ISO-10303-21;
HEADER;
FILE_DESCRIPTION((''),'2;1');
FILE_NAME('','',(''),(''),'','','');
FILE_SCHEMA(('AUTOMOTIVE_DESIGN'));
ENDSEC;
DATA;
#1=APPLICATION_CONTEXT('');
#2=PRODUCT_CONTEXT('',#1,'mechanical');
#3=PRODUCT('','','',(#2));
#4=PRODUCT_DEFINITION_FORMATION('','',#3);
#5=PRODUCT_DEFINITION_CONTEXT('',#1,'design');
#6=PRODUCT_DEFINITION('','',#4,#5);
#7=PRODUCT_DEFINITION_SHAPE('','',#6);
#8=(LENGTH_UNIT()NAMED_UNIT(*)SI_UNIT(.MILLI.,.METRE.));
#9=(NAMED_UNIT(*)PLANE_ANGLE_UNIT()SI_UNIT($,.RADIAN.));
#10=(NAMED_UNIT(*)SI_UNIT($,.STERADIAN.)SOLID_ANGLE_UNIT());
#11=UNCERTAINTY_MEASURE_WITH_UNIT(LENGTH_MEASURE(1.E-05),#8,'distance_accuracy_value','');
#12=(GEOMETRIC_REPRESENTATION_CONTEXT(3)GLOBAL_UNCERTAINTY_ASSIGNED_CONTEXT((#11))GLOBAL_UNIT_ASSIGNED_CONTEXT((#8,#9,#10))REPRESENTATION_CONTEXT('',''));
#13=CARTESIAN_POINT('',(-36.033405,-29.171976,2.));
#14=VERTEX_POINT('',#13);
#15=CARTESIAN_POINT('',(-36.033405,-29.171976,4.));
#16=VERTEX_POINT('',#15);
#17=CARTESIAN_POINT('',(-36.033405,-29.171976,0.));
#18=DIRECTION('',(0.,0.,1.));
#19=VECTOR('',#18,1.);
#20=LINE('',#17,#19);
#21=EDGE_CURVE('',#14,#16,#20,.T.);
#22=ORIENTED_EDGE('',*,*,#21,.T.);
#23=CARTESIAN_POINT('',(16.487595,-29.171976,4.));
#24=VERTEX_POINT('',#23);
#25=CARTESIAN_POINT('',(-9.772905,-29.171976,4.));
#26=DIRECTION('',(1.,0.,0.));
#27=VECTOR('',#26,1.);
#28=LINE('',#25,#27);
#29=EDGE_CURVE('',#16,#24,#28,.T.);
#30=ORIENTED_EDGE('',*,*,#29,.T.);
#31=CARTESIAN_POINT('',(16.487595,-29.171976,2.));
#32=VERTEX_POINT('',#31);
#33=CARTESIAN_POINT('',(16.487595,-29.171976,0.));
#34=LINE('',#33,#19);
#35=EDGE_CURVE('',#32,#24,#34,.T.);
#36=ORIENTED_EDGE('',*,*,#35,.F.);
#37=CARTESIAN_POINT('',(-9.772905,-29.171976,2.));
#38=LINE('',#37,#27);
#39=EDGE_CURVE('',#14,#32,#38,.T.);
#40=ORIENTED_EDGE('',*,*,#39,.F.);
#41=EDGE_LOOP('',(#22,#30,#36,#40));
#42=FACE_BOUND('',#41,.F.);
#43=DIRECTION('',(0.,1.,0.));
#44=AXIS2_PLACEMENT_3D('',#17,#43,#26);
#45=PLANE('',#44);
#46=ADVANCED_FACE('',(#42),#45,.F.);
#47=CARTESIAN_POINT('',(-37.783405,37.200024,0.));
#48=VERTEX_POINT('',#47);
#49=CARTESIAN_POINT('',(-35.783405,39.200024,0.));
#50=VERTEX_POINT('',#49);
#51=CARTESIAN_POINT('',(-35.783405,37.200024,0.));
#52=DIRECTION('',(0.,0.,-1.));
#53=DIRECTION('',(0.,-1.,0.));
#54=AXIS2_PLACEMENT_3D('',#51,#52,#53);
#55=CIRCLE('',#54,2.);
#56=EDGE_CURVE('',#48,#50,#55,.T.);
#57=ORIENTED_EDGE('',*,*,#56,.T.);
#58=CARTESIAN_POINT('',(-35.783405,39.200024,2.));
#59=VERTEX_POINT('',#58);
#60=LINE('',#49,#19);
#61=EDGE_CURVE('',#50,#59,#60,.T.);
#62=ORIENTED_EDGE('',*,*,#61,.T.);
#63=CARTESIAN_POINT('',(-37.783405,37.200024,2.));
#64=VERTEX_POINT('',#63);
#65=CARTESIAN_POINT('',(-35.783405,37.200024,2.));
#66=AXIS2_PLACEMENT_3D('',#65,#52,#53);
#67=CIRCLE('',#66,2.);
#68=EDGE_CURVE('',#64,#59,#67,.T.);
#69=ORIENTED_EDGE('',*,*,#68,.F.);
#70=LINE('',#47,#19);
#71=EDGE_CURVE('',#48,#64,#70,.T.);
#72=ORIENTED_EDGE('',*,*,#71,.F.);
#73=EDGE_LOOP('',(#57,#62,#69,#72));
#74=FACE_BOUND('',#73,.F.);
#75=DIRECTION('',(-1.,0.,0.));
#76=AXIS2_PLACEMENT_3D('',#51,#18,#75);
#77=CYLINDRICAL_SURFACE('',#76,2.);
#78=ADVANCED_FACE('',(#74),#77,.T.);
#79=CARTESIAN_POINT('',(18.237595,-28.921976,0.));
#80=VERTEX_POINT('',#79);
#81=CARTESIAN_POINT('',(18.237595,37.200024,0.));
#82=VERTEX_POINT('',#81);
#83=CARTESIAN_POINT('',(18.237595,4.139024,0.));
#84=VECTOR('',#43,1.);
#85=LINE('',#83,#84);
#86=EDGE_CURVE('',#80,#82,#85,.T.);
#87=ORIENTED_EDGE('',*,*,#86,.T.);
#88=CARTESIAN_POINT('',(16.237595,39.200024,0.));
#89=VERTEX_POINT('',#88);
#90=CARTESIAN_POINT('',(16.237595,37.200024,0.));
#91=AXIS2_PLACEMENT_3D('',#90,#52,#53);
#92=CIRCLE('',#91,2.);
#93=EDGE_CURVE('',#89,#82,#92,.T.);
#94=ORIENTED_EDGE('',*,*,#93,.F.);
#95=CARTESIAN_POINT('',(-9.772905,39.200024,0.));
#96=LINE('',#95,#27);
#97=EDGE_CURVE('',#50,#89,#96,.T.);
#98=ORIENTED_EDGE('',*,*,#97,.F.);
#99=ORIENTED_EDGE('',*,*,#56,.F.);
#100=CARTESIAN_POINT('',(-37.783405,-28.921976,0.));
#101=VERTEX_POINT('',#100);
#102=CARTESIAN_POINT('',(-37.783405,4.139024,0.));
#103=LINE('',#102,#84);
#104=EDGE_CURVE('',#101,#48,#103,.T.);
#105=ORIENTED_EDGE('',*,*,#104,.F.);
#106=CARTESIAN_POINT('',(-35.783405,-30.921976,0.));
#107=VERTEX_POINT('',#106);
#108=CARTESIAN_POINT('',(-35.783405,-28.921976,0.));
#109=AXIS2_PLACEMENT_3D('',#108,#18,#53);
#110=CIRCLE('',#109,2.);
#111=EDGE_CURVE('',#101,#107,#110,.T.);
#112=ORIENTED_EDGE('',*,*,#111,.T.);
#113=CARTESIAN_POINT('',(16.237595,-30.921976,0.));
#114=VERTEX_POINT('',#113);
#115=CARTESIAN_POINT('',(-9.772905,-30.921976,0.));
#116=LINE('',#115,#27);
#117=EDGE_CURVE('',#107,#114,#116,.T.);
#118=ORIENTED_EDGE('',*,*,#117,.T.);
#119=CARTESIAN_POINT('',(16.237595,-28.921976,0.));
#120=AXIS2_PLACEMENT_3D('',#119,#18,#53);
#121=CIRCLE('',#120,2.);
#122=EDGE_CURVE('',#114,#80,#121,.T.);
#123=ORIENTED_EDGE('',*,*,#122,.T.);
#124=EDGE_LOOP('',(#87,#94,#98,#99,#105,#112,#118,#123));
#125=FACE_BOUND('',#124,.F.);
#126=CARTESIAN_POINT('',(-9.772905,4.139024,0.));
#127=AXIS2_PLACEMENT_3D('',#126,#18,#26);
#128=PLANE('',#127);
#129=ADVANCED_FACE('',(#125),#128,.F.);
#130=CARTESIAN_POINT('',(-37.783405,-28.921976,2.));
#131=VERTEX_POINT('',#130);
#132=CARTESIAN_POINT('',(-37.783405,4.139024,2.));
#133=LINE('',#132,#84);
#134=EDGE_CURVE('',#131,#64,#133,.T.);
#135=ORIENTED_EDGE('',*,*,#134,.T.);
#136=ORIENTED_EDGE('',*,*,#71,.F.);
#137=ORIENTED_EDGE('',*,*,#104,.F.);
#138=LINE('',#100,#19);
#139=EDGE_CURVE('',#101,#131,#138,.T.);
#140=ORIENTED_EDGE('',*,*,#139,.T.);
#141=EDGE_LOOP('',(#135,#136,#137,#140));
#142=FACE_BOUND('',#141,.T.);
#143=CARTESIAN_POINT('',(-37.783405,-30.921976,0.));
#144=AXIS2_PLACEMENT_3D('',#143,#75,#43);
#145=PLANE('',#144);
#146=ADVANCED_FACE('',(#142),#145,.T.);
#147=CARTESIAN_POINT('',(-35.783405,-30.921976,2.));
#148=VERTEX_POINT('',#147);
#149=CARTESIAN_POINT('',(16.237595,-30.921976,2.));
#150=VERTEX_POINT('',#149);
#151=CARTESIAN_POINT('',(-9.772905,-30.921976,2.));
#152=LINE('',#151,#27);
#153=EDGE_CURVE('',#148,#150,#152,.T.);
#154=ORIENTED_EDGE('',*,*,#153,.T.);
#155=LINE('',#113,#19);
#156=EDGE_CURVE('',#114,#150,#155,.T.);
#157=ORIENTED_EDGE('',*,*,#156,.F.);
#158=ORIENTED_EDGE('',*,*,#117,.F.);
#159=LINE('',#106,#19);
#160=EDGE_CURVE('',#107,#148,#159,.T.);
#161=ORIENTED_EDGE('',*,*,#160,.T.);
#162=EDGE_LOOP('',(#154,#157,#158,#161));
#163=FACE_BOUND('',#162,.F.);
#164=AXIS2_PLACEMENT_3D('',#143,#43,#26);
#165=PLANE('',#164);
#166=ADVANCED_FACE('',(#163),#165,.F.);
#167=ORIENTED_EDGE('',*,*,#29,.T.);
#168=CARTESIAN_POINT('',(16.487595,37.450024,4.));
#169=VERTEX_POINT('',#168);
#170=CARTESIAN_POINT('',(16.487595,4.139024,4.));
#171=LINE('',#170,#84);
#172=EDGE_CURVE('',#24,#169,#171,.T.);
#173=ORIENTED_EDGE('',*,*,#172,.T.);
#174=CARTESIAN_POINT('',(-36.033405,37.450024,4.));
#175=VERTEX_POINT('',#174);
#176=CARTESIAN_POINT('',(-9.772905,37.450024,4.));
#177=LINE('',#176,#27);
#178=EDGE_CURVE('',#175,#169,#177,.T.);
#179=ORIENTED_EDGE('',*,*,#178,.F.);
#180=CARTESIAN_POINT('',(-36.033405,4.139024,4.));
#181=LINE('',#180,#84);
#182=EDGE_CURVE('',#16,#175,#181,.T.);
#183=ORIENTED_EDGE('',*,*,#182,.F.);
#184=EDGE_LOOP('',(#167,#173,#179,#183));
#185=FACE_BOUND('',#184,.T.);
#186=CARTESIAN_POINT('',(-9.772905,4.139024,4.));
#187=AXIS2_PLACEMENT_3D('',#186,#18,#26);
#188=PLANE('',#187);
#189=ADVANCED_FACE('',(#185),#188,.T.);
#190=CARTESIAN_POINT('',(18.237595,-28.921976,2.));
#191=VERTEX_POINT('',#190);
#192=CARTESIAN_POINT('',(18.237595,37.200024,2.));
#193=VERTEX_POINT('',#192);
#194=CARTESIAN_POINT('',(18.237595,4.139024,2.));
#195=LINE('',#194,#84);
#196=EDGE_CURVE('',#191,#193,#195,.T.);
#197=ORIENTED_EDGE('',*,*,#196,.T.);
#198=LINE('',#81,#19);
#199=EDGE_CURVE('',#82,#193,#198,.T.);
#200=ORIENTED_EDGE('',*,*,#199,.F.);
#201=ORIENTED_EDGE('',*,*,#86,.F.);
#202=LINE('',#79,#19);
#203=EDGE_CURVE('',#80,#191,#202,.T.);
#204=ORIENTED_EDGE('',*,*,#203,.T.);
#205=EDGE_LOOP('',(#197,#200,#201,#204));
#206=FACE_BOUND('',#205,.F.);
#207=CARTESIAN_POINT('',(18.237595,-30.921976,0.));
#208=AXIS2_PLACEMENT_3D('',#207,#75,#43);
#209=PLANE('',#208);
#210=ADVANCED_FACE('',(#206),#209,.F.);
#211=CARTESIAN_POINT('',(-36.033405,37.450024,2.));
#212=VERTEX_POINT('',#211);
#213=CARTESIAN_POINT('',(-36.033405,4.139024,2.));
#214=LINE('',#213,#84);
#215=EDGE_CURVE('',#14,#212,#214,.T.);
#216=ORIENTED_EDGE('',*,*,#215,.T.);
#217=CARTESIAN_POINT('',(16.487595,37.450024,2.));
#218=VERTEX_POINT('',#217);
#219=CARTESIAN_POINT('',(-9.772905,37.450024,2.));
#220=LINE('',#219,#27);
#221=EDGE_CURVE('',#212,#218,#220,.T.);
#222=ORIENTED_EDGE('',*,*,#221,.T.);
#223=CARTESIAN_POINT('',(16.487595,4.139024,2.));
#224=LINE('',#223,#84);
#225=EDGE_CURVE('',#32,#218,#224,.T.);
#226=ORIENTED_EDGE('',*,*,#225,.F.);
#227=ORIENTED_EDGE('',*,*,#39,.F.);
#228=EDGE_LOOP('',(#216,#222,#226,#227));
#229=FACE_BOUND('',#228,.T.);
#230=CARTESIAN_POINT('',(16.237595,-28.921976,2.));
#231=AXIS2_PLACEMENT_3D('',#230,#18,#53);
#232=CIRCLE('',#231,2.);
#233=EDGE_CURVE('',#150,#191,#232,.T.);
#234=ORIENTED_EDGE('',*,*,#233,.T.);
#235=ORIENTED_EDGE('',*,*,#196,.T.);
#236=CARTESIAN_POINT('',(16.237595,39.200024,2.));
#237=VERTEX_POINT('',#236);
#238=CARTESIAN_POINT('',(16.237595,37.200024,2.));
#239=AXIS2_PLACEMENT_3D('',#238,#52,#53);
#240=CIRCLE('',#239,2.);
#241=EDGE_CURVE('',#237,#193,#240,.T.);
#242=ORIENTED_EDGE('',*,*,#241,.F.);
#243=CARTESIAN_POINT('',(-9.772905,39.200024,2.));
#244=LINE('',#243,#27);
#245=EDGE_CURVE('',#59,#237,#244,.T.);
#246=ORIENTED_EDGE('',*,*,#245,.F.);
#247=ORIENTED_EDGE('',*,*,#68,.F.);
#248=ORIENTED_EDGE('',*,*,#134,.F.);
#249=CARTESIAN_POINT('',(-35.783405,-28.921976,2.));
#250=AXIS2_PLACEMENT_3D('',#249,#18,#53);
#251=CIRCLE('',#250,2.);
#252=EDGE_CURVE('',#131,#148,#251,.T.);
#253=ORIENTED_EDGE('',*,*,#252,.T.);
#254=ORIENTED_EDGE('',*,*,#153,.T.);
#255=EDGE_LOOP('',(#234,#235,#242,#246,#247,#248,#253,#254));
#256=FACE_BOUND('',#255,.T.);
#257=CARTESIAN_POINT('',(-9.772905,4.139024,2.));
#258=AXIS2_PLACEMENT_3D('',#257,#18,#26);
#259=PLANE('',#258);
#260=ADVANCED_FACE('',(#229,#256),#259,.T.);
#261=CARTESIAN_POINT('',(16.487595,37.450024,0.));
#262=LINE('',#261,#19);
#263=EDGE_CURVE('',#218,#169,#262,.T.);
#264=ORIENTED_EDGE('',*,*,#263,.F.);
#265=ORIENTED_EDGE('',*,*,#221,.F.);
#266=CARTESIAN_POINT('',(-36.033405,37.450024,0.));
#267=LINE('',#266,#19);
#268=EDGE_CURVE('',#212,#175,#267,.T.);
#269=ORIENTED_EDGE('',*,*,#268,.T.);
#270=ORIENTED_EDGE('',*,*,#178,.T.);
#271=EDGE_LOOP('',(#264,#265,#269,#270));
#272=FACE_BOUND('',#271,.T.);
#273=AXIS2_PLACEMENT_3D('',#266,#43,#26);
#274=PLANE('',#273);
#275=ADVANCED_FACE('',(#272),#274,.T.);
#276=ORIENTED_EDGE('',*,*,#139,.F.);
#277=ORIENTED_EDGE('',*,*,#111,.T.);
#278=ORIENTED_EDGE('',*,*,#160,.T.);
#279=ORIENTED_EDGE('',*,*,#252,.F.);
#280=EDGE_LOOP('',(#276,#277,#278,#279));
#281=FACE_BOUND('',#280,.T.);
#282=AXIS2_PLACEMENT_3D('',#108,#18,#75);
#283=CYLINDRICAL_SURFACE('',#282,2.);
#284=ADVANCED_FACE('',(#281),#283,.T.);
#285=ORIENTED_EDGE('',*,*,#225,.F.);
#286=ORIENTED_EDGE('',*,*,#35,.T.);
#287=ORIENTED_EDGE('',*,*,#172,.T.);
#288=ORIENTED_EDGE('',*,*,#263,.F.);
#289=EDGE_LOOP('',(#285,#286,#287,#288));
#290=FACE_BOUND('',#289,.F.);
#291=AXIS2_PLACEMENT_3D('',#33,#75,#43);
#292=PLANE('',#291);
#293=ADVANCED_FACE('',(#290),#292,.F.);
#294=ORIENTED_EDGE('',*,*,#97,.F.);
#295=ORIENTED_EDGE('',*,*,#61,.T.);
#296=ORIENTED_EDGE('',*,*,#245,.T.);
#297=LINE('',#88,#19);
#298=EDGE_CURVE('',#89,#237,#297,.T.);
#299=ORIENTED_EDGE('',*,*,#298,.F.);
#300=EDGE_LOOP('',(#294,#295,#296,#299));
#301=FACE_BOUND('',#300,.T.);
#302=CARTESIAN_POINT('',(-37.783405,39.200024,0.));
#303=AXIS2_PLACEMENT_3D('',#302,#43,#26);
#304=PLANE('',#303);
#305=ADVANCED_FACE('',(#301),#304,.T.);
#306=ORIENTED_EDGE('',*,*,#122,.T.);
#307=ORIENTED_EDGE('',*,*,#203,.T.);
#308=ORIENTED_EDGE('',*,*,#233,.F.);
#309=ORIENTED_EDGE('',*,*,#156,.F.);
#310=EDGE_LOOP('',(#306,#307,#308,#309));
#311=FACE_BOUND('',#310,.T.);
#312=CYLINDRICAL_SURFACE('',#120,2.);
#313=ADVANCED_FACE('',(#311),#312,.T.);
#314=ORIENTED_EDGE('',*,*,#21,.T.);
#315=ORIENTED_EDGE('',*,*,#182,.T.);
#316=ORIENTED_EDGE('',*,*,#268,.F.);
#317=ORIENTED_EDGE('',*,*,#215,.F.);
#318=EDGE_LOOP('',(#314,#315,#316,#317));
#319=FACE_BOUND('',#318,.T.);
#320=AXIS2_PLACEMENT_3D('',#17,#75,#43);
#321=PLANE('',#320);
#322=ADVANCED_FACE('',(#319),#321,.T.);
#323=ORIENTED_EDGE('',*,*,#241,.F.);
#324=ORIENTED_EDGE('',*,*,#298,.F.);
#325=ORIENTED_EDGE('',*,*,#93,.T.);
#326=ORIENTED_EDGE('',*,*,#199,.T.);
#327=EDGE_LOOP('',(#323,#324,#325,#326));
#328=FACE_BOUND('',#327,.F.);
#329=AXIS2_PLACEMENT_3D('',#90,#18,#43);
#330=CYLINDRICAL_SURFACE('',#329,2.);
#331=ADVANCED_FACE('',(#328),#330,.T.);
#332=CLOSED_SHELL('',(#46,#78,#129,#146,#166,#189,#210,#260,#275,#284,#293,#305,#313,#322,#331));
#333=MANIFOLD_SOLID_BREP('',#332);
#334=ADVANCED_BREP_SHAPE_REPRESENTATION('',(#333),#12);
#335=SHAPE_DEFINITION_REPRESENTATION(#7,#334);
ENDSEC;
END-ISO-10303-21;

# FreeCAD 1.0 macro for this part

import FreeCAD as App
import Part
import Sketcher

V = App.Vector
Q = App.Units.Quantity


def edges_at(feature, points):
    """Names of the edges that pass closest to the given points."""
    edges = feature.Shape.Edges
    near = lambda p: min(range(len(edges)), key=lambda i: edges[i].distToShape(Part.Vertex(*p))[0])
    return sorted({f"Edge{near(p) + 1}" for p in points})

doc = App.newDocument("Part")
body = doc.addObject("PartDesign::Body", "Body")

sketch1 = doc.addObject("Sketcher::SketchObject", "Sketch")
body.addObject(sketch1)
sketch1.AttachmentSupport = (doc.XY_Plane, [""])
sketch1.MapMode = "FlatFace"
sketch1.addGeometry([
    Part.LineSegment(V(-38, 39, 0), V(-38, -31, 0)),
    Part.LineSegment(V(-38, -31, 0), V(18, -31, 0)),
    Part.LineSegment(V(18, -31, 0), V(18, 39, 0)),
    Part.LineSegment(V(18, 39, 0), V(-38, 39, 0)),
    Part.LineSegment(V(16, -29, 0), V(-36, -29, 0)),
    Part.LineSegment(V(-36, -29, 0), V(-36, 37, 0)),
    Part.LineSegment(V(-36, 37, 0), V(16, 37, 0)),
    Part.LineSegment(V(16, 37, 0), V(16, -29, 0)),
], False)
sketch1.addConstraint([
    Sketcher.Constraint("Coincident", 0, 2, 1, 1),
    Sketcher.Constraint("Coincident", 1, 2, 2, 1),
    Sketcher.Constraint("Coincident", 2, 2, 3, 1),
    Sketcher.Constraint("Coincident", 3, 2, 0, 1),
    Sketcher.Constraint("Coincident", 4, 2, 5, 1),
    Sketcher.Constraint("Coincident", 5, 2, 6, 1),
    Sketcher.Constraint("Coincident", 6, 2, 7, 1),
    Sketcher.Constraint("Coincident", 7, 2, 4, 1),
    Sketcher.Constraint("Vertical", 0),
    Sketcher.Constraint("Horizontal", 1),
    Sketcher.Constraint("Vertical", 2),
    Sketcher.Constraint("Horizontal", 3),
    Sketcher.Constraint("Horizontal", 4),
    Sketcher.Constraint("Vertical", 5),
    Sketcher.Constraint("Horizontal", 6),
    Sketcher.Constraint("Vertical", 7),
    Sketcher.Constraint("DistanceX", 1, 1, 1, 2, Q("56.021 mm")),
    Sketcher.Constraint("DistanceX", 4, 2, 4, 1, Q("52.521 mm")),
    Sketcher.Constraint("DistanceY", 0, 2, 0, 1, Q("70.122 mm")),
    Sketcher.Constraint("DistanceY", 5, 1, 5, 2, Q("66.622 mm")),
    Sketcher.Constraint("DistanceX", 0, 2, 4, 2, Q("1.75 mm")),
    Sketcher.Constraint("DistanceY", 0, 2, 4, 2, Q("1.75 mm")),
    Sketcher.Constraint("DistanceX", 0, 2, -1, 1, Q("37.783405 mm")),
    Sketcher.Constraint("DistanceY", 0, 2, -1, 1, Q("30.921976 mm")),
])
pad1 = doc.addObject("PartDesign::Pad", "Pad")
body.addObject(pad1)
pad1.Profile = sketch1
pad1.Length = 2
doc.recompute()

fillet = doc.addObject("PartDesign::Fillet", "Fillet")
body.addObject(fillet)
fillet.Base = (pad1, edges_at(pad1, [
    (-37.783, -30.922, 1),
    (-37.783, 39.2, 1),
    (18.238, 39.2, 1),
    (18.238, -30.922, 1),
]))
fillet.Radius = 2

sketch2 = doc.addObject("Sketcher::SketchObject", "Sketch001")
body.addObject(sketch2)
sketch2.AttachmentSupport = (doc.XY_Plane, [""])
sketch2.MapMode = "FlatFace"
sketch2.addGeometry([
    Part.LineSegment(V(-36, 37, 0), V(-36, -29, 0)),
    Part.LineSegment(V(-36, -29, 0), V(16, -29, 0)),
    Part.LineSegment(V(16, -29, 0), V(16, 37, 0)),
    Part.LineSegment(V(16, 37, 0), V(-36, 37, 0)),
], False)
sketch2.addConstraint([
    Sketcher.Constraint("Coincident", 0, 2, 1, 1),
    Sketcher.Constraint("Coincident", 1, 2, 2, 1),
    Sketcher.Constraint("Coincident", 2, 2, 3, 1),
    Sketcher.Constraint("Coincident", 3, 2, 0, 1),
    Sketcher.Constraint("Vertical", 0),
    Sketcher.Constraint("Horizontal", 1),
    Sketcher.Constraint("Vertical", 2),
    Sketcher.Constraint("Horizontal", 3),
    Sketcher.Constraint("DistanceX", 1, 1, 1, 2, Q("52.521 mm")),
    Sketcher.Constraint("DistanceY", 0, 2, 0, 1, Q("66.622 mm")),
    Sketcher.Constraint("DistanceX", 0, 2, -1, 1, Q("36.033405 mm")),
    Sketcher.Constraint("DistanceY", 0, 2, -1, 1, Q("29.171976 mm")),
])
pad2 = doc.addObject("PartDesign::Pad", "Pad001")
body.addObject(pad2)
pad2.Profile = sketch2
pad2.Length = 4

doc.recompute()
